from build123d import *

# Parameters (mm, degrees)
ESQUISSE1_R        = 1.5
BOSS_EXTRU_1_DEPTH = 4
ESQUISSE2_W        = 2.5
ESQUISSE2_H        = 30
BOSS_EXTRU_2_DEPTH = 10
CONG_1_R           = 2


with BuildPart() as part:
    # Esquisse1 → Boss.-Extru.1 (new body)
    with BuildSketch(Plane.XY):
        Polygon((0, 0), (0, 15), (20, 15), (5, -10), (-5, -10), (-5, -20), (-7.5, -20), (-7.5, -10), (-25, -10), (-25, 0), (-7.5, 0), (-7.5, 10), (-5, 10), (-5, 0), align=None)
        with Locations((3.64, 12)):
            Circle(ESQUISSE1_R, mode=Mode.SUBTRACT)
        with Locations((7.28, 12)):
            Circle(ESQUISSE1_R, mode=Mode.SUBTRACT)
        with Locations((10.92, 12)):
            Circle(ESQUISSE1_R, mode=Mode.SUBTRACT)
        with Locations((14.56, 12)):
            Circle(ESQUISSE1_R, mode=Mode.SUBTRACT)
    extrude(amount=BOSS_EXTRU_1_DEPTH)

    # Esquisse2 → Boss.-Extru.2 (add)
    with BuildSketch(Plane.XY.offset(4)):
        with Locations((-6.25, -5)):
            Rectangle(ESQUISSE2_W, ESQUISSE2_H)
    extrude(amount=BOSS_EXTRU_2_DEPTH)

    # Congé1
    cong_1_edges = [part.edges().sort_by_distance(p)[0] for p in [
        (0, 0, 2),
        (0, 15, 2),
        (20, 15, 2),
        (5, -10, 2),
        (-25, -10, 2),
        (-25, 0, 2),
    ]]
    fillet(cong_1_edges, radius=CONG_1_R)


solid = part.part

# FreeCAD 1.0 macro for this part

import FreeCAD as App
import Part
import Sketcher
from FreeCAD import Vector


def edges_at(feature, points):
    """Names of the edges that pass closest to the given points."""
    edges = feature.Shape.Edges
    near = lambda p: min(range(len(edges)), key=lambda i: edges[i].distToShape(Part.Vertex(*p))[0])
    return sorted({f"Edge{near(p) + 1}" for p in points})

doc = App.newDocument("Part")
body = doc.addObject("PartDesign::Body", "Body")

# Sketch on XY plane
sketch1 = doc.addObject("Sketcher::SketchObject", "Sketch")
body.addObject(sketch1)
sketch1.AttachmentSupport = (doc.XY_Plane, [""])
sketch1.MapMode = "FlatFace"
sketch1.addGeometry([
    Part.LineSegment(Vector(0, 15, 0), Vector(0, 0, 0)),  # 0
    Part.LineSegment(Vector(0, 0, 0), Vector(-5, 0, 0)),  # 1
    Part.LineSegment(Vector(-5, 0, 0), Vector(-5, 10, 0)),  # 2
    Part.LineSegment(Vector(-5, 10, 0), Vector(-7.5, 10, 0)),  # 3
    Part.LineSegment(Vector(-7.5, 10, 0), Vector(-7.5, 0, 0)),  # 4
    Part.LineSegment(Vector(-7.5, 0, 0), Vector(-25, 0, 0)),  # 5
    Part.LineSegment(Vector(-25, 0, 0), Vector(-25, -10, 0)),  # 6
    Part.LineSegment(Vector(-25, -10, 0), Vector(-7.5, -10, 0)),  # 7
    Part.LineSegment(Vector(-7.5, -10, 0), Vector(-7.5, -20, 0)),  # 8
    Part.LineSegment(Vector(-7.5, -20, 0), Vector(-5, -20, 0)),  # 9
    Part.LineSegment(Vector(-5, -20, 0), Vector(-5, -10, 0)),  # 10
    Part.LineSegment(Vector(-5, -10, 0), Vector(5, -10, 0)),  # 11
    Part.LineSegment(Vector(5, -10, 0), Vector(20, 15, 0)),  # 12
    Part.LineSegment(Vector(20, 15, 0), Vector(0, 15, 0)),  # 13
    Part.Circle(Vector(14.6, 12, 0), Vector(0, 0, 1), 1.5),  # 14
    Part.Circle(Vector(10.9, 12, 0), Vector(0, 0, 1), 1.5),  # 15
    Part.Circle(Vector(7.3, 12, 0), Vector(0, 0, 1), 1.5),  # 16
    Part.Circle(Vector(3.6, 12, 0), Vector(0, 0, 1), 1.5),  # 17
], False)
sketch1.addConstraint([
    Sketcher.Constraint("Coincident", 0, 2, 1, 1),
    Sketcher.Constraint("Coincident", 1, 2, 2, 1),
    Sketcher.Constraint("Coincident", 2, 2, 3, 1),
    Sketcher.Constraint("Coincident", 3, 2, 4, 1),
    Sketcher.Constraint("Coincident", 4, 2, 5, 1),
    Sketcher.Constraint("Coincident", 5, 2, 6, 1),
    Sketcher.Constraint("Coincident", 6, 2, 7, 1),
    Sketcher.Constraint("Coincident", 7, 2, 8, 1),
    Sketcher.Constraint("Coincident", 8, 2, 9, 1),
    Sketcher.Constraint("Coincident", 9, 2, 10, 1),
    Sketcher.Constraint("Coincident", 10, 2, 11, 1),
    Sketcher.Constraint("Coincident", 11, 2, 12, 1),
    Sketcher.Constraint("Coincident", 12, 2, 13, 1),
    Sketcher.Constraint("Coincident", 13, 2, 0, 1),
    Sketcher.Constraint("Vertical", 0),
    Sketcher.Constraint("Horizontal", 1),
    Sketcher.Constraint("Vertical", 2),
    Sketcher.Constraint("Horizontal", 3),
    Sketcher.Constraint("Vertical", 4),
    Sketcher.Constraint("Horizontal", 5),
    Sketcher.Constraint("Vertical", 6),
    Sketcher.Constraint("Horizontal", 7),
    Sketcher.Constraint("Vertical", 8),
    Sketcher.Constraint("Horizontal", 9),
    Sketcher.Constraint("Vertical", 10),
    Sketcher.Constraint("Horizontal", 11),
    Sketcher.Constraint("Horizontal", 13),
    Sketcher.Constraint("Coincident", 0, 2, -1, 1),
    Sketcher.Constraint("Equal", 14, 15),
    Sketcher.Constraint("Equal", 15, 16),
    Sketcher.Constraint("Equal", 16, 17),
    Sketcher.Constraint("Symmetric", 2, 2, 11, 2, -1, 1),
    Sketcher.Constraint("Symmetric", 3, 2, 7, 2, -1),
    Sketcher.Constraint("PointOnObject", 4, 2, -1),
    Sketcher.Constraint("Horizontal", 14, 3, 15, 3),
    Sketcher.Constraint("Horizontal", 15, 3, 16, 3),
    Sketcher.Constraint("Horizontal", 16, 3, 17, 3),
    Sketcher.Constraint("Vertical", 2, 2, 9, 2),
    Sketcher.Constraint("Equal", 11, 2),
    Sketcher.Constraint("Equal", 6, 8),
    Sketcher.Constraint("Diameter", 14, 3.0),
    Sketcher.Constraint("DistanceX", 1, 2, 1, 1, 5.0),
    Sketcher.Constraint("DistanceX", 13, 2, 13, 1, 20.0),
    Sketcher.Constraint("DistanceY", 0, 2, 0, 1, 15.0),
    Sketcher.Constraint("DistanceX", 3, 2, 3, 1, 2.5),
    Sketcher.Constraint("DistanceX", 5, 2, 5, 1, 17.5),
    Sketcher.Constraint("DistanceY", -1, 1, 14, 3, 12.0),
    Sketcher.Constraint("DistanceX", -1, 1, 14, 3, 14.56),
    Sketcher.Constraint("DistanceX", -1, 1, 15, 3, 10.92),
    Sketcher.Constraint("DistanceX", -1, 1, 16, 3, 7.28),
    Sketcher.Constraint("DistanceX", -1, 1, 17, 3, 3.64),
])
pad1 = doc.addObject("PartDesign::Pad", "Pad")
body.addObject(pad1)
pad1.Profile = sketch1
pad1.Length = 4

# Sketch on XY plane
sketch2 = doc.addObject("Sketcher::SketchObject", "Sketch001")
body.addObject(sketch2)
sketch2.AttachmentSupport = (doc.XY_Plane, [""])
sketch2.MapMode = "FlatFace"
sketch2.AttachmentOffset = App.Placement(Vector(0, 0, 4), App.Rotation())
sketch2.addGeometry([
    Part.LineSegment(Vector(-7.5, 10, 0), Vector(-7.5, -20, 0)),
    Part.LineSegment(Vector(-7.5, -20, 0), Vector(-5, -20, 0)),
    Part.LineSegment(Vector(-5, -20, 0), Vector(-5, 10, 0)),
    Part.LineSegment(Vector(-5, 10, 0), Vector(-7.5, 10, 0)),
], False)
sketch2.addConstraint([
    Sketcher.Constraint("Coincident", 0, 2, 1, 1),
    Sketcher.Constraint("Coincident", 1, 2, 2, 1),
    Sketcher.Constraint("Coincident", 2, 2, 3, 1),
    Sketcher.Constraint("Coincident", 3, 2, 0, 1),
    Sketcher.Constraint("Vertical", 0),
    Sketcher.Constraint("Horizontal", 1),
    Sketcher.Constraint("Vertical", 2),
    Sketcher.Constraint("Horizontal", 3),
    Sketcher.Constraint("DistanceY", 0, 2, 0, 1, 30.0),
    Sketcher.Constraint("DistanceX", 1, 1, 1, 2, 2.5),
    Sketcher.Constraint("DistanceY", 0, 2, -1, 1, 20.0),
    Sketcher.Constraint("DistanceX", 1, 2, -1, 1, 5.0),
])
pad2 = doc.addObject("PartDesign::Pad", "Pad001")
body.addObject(pad2)
pad2.Profile = sketch2
pad2.Length = 10
doc.recompute()

fillet = doc.addObject("PartDesign::Fillet", "Fillet")
body.addObject(fillet)
fillet.Base = (pad2, edges_at(pad2, [
    (0, 0, 2),
    (0, 15, 2),
    (20, 15, 2),
    (5, -10, 2),
    (-25, -10, 2),
    (-25, 0, 2),
]))
fillet.Radius = 2

doc.recompute()
